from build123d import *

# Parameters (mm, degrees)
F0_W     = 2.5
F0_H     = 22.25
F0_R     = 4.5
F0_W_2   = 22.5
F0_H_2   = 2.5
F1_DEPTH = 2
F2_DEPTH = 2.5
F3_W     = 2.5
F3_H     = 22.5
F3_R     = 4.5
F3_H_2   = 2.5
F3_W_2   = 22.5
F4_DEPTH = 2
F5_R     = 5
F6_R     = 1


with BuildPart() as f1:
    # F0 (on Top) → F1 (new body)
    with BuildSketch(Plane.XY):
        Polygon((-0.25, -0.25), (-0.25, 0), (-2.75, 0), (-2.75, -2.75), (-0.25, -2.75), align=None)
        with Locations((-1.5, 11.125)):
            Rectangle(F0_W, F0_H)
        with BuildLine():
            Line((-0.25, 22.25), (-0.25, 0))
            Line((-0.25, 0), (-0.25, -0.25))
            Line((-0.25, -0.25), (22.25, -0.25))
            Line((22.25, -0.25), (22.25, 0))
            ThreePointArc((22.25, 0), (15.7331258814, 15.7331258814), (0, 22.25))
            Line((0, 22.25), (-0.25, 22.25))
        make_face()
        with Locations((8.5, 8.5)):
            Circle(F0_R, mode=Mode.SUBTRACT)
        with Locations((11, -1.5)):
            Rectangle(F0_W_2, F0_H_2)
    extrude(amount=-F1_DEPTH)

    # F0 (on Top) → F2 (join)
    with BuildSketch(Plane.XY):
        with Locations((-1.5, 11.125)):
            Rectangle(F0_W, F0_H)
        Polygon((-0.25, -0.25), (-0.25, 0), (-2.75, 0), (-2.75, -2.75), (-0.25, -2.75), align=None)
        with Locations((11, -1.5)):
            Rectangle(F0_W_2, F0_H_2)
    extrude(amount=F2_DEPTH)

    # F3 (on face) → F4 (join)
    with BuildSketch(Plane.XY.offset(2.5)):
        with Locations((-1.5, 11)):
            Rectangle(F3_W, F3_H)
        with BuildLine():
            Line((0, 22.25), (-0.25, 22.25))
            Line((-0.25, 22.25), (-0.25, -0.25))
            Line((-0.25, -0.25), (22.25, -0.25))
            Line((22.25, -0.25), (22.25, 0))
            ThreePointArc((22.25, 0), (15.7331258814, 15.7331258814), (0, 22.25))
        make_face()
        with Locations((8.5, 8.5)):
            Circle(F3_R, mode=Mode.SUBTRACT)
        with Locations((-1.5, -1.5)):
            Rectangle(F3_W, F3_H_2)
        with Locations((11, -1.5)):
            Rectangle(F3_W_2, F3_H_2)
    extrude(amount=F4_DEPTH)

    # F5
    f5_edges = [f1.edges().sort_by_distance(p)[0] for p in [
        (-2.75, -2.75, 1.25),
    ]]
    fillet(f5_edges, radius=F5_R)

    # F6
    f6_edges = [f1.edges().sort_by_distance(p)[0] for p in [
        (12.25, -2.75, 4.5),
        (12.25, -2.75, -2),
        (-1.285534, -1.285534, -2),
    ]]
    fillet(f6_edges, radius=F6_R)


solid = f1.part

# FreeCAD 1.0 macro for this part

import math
import FreeCAD as App
import Part
import Sketcher


def edges_at(feature, points):
    """Names of the edges that pass closest to the given points."""
    edges = feature.Shape.Edges
    near = lambda p: min(range(len(edges)), key=lambda i: edges[i].distToShape(Part.Vertex(*p))[0])
    return sorted({f"Edge{near(p) + 1}" for p in points})

doc = App.newDocument("Part")
body = doc.addObject("PartDesign::Body", "Body")

sketch1 = doc.addObject("Sketcher::SketchObject", "Sketch")
body.addObject(sketch1)
sketch1.AttachmentSupport = (doc.XY_Plane, [""])
sketch1.MapMode = "FlatFace"
sketch1.addGeometry([
    Part.LineSegment(App.Vector(-2.8, -2.8, 0), App.Vector(22.2, -2.8, 0)),
    Part.LineSegment(App.Vector(22.2, -2.8, 0), App.Vector(22.2, 0, 0)),
    Part.ArcOfCircle(Part.Circle(App.Vector(0, 0, 0), App.Vector(0, 0, 1), 22.2), math.radians(0), math.radians(90)),
    Part.LineSegment(App.Vector(0, 22.2, 0), App.Vector(-2.8, 22.2, 0)),
    Part.LineSegment(App.Vector(-2.8, 22.2, 0), App.Vector(-2.8, -2.8, 0)),
    Part.Circle(App.Vector(8.5, 8.5, 0), App.Vector(0, 0, 1), 4.5),
], False)
sketch1.addConstraint([
    Sketcher.Constraint("Coincident", 0, 2, 1, 1),
    Sketcher.Constraint("Tangent", 1, 2, 2, 1),
    Sketcher.Constraint("Tangent", 2, 2, 3, 1),
    Sketcher.Constraint("Coincident", 3, 2, 4, 1),
    Sketcher.Constraint("Coincident", 4, 2, 0, 1),
    Sketcher.Constraint("Horizontal", 0),
    Sketcher.Constraint("Vertical", 1),
    Sketcher.Constraint("Horizontal", 3),
    Sketcher.Constraint("Vertical", 4),
    Sketcher.Constraint("Coincident", 2, 3, -1, 1),
    Sketcher.Constraint("Equal", 3, 1),
    Sketcher.Constraint("Diameter", 5, 9.0),
    Sketcher.Constraint("DistanceX", 0, 1, 0, 2, 25.0),
    Sketcher.Constraint("Radius", 2, 22.25),
    Sketcher.Constraint("DistanceX", -1, 1, 5, 3, 8.5),
    Sketcher.Constraint("DistanceY", -1, 1, 5, 3, 8.5),
])
pad1 = doc.addObject("PartDesign::Pad", "Pad")
body.addObject(pad1)
pad1.Profile = sketch1
pad1.Length = 2
pad1.Reversed = True

sketch2 = doc.addObject("Sketcher::SketchObject", "Sketch001")
body.addObject(sketch2)
sketch2.AttachmentSupport = (doc.XY_Plane, [""])
sketch2.MapMode = "FlatFace"
sketch2.addGeometry([
    Part.LineSegment(App.Vector(-2.8, 22.2, 0), App.Vector(-2.8, -2.8, 0)),
    Part.LineSegment(App.Vector(-2.8, -2.8, 0), App.Vector(22.2, -2.8, 0)),
    Part.LineSegment(App.Vector(22.2, -2.8, 0), App.Vector(22.2, -0.2, 0)),
    Part.LineSegment(App.Vector(22.2, -0.2, 0), App.Vector(-0.2, -0.2, 0)),
    Part.LineSegment(App.Vector(-0.2, -0.2, 0), App.Vector(-0.2, 22.2, 0)),
    Part.LineSegment(App.Vector(-0.2, 22.2, 0), App.Vector(-2.8, 22.2, 0)),
], False)
sketch2.addConstraint([
    Sketcher.Constraint("Coincident", 0, 2, 1, 1),
    Sketcher.Constraint("Coincident", 1, 2, 2, 1),
    Sketcher.Constraint("Coincident", 2, 2, 3, 1),
    Sketcher.Constraint("Coincident", 3, 2, 4, 1),
    Sketcher.Constraint("Coincident", 4, 2, 5, 1),
    Sketcher.Constraint("Coincident", 5, 2, 0, 1),
    Sketcher.Constraint("Vertical", 0),
    Sketcher.Constraint("Horizontal", 1),
    Sketcher.Constraint("Vertical", 2),
    Sketcher.Constraint("Horizontal", 3),
    Sketcher.Constraint("Vertical", 4),
    Sketcher.Constraint("Horizontal", 5),
    Sketcher.Constraint("Equal", 1, 0),
    Sketcher.Constraint("Equal", 5, 2),
    Sketcher.Constraint("DistanceX", 1, 1, 1, 2, 25.0),
    Sketcher.Constraint("DistanceX", 3, 2, 3, 1, 22.5),
    Sketcher.Constraint("DistanceX", 0, 2, -1, 1, 2.75),
    Sketcher.Constraint("DistanceY", 0, 2, -1, 1, 2.75),
])
pad2 = doc.addObject("PartDesign::Pad", "Pad001")
body.addObject(pad2)
pad2.Profile = sketch2
pad2.Length = 2.5

sketch3 = doc.addObject("Sketcher::SketchObject", "Sketch002")
body.addObject(sketch3)
sketch3.AttachmentSupport = (doc.XY_Plane, [""])
sketch3.MapMode = "FlatFace"
sketch3.AttachmentOffset = App.Placement(App.Vector(0, 0, 2.5), App.Rotation())
sketch3.addGeometry([
    Part.LineSegment(App.Vector(-2.8, 22.2, 0), App.Vector(-2.8, -2.8, 0)),
    Part.LineSegment(App.Vector(-2.8, -2.8, 0), App.Vector(22.2, -2.8, 0)),
    Part.LineSegment(App.Vector(22.2, -2.8, 0), App.Vector(22.2, 0, 0)),
    Part.ArcOfCircle(Part.Circle(App.Vector(0, 0, 0), App.Vector(0, 0, 1), 22.2), math.radians(0), math.radians(90)),
    Part.LineSegment(App.Vector(0, 22.2, 0), App.Vector(-2.8, 22.2, 0)),
    Part.Circle(App.Vector(8.5, 8.5, 0), App.Vector(0, 0, 1), 4.5),
], False)
sketch3.addConstraint([
    Sketcher.Constraint("Coincident", 0, 2, 1, 1),
    Sketcher.Constraint("Coincident", 1, 2, 2, 1),
    Sketcher.Constraint("Tangent", 2, 2, 3, 1),
    Sketcher.Constraint("Tangent", 3, 2, 4, 1),
    Sketcher.Constraint("Coincident", 4, 2, 0, 1),
    Sketcher.Constraint("Vertical", 0),
    Sketcher.Constraint("Horizontal", 1),
    Sketcher.Constraint("Vertical", 2),
    Sketcher.Constraint("Horizontal", 4),
    Sketcher.Constraint("Coincident", 3, 3, -1, 1),
    Sketcher.Constraint("Equal", 1, 0),
    Sketcher.Constraint("Diameter", 5, 9.0),
    Sketcher.Constraint("DistanceX", 1, 1, 1, 2, 25.0),
    Sketcher.Constraint("Radius", 3, 22.25),
    Sketcher.Constraint("DistanceX", -1, 1, 5, 3, 8.5),
    Sketcher.Constraint("DistanceY", -1, 1, 5, 3, 8.5),
])
pad3 = doc.addObject("PartDesign::Pad", "Pad002")
body.addObject(pad3)
pad3.Profile = sketch3
pad3.Length = 2
doc.recompute()

fillet = doc.addObject("PartDesign::Fillet", "Fillet")
body.addObject(fillet)
fillet.Base = (pad3, edges_at(pad3, [(-2.75, -2.75, 1.25)]))
fillet.Radius = 5
doc.recompute()

fillet2 = doc.addObject("PartDesign::Fillet", "Fillet001")
body.addObject(fillet2)
fillet2.Base = (fillet, edges_at(fillet, [(12.25, -2.75, 4.5), (12.25, -2.75, -2), (-1.286, -1.286, -2)]))
fillet2.Radius = 1

doc.recompute()
